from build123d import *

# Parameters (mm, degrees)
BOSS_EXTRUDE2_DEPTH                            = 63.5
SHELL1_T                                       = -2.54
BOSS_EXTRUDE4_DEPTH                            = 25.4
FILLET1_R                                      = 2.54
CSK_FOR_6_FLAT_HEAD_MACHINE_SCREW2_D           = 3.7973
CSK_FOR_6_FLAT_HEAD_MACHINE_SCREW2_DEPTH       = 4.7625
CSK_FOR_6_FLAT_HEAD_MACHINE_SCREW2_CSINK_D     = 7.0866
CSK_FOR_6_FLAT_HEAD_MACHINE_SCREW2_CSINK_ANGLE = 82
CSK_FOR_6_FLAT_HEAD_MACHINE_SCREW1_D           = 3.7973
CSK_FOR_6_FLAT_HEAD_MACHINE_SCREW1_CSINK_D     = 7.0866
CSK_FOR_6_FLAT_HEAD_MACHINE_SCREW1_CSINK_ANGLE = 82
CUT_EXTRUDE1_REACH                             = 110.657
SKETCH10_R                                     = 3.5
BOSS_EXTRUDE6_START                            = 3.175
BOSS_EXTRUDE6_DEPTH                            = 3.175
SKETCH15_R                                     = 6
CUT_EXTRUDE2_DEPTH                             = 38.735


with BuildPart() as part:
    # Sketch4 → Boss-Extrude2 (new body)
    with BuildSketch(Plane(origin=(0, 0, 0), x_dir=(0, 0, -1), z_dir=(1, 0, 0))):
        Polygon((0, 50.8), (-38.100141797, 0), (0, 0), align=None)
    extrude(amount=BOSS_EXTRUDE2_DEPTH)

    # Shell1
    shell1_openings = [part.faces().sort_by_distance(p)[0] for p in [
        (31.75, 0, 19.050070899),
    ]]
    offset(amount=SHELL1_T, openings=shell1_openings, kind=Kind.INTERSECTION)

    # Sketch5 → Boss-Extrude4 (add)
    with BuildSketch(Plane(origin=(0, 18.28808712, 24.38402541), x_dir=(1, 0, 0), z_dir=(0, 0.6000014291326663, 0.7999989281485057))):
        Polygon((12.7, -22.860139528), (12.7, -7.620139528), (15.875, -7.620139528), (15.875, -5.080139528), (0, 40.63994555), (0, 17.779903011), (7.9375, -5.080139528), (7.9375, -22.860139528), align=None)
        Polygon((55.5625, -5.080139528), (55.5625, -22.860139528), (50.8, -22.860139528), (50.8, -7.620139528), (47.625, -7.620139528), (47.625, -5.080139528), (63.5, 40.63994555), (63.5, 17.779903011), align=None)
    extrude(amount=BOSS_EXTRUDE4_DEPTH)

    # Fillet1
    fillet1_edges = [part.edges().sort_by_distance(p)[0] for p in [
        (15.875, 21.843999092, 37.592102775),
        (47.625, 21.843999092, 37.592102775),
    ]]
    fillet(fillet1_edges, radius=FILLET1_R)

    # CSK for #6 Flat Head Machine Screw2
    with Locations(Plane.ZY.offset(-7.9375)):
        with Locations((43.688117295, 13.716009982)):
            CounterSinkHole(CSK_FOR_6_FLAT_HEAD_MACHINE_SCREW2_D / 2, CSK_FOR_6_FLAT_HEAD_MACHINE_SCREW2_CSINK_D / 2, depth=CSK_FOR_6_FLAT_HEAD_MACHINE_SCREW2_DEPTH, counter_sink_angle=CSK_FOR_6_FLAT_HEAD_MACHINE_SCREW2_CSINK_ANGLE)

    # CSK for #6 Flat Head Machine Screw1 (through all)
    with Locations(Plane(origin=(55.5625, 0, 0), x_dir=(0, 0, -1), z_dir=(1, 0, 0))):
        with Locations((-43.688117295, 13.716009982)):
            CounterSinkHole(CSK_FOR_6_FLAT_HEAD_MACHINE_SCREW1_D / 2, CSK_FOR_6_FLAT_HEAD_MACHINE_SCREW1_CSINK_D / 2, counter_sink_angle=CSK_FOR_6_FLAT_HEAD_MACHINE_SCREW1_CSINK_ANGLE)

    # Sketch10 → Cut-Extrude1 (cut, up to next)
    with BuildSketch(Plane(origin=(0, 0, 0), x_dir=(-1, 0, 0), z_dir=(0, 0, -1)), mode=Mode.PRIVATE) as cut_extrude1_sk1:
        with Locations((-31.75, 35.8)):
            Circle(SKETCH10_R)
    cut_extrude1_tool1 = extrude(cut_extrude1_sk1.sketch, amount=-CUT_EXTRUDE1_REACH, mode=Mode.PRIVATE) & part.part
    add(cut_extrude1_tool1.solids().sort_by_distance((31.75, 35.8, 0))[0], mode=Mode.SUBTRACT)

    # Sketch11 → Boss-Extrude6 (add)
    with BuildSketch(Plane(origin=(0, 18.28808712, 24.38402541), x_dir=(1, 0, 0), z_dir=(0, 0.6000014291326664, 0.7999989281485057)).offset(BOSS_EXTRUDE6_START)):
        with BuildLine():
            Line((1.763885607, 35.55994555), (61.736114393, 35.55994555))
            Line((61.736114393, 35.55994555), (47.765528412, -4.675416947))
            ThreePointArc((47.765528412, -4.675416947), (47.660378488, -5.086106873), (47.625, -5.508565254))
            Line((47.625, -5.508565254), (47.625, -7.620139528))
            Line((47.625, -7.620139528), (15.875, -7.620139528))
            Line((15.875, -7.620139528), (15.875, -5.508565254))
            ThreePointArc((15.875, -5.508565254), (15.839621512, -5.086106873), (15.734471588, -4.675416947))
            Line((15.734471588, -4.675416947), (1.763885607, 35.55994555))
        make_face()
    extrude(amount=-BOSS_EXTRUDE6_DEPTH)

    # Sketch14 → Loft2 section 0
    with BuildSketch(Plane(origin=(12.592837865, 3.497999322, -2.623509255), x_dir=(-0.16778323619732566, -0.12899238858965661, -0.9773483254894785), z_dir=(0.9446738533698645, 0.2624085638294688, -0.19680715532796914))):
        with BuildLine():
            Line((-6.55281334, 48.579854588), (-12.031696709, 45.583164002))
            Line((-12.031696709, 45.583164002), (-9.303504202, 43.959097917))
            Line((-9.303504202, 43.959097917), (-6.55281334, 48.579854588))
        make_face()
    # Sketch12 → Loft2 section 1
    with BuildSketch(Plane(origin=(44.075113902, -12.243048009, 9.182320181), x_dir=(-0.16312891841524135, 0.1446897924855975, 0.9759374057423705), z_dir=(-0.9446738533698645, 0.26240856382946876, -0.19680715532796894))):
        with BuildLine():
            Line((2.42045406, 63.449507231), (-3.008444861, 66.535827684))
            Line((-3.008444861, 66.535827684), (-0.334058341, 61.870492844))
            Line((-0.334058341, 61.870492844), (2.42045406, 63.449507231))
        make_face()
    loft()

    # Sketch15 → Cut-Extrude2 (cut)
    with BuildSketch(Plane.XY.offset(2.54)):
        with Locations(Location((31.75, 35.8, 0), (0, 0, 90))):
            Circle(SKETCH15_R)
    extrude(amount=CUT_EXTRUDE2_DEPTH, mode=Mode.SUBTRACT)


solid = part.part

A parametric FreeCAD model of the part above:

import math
import FreeCAD as App
import Part
import Sketcher
from FreeCAD import Vector
Q = App.Units.Quantity


def edges_at(feature, points):
    """Names of the edges that pass closest to the given points."""
    edges = feature.Shape.Edges
    near = lambda p: min(range(len(edges)), key=lambda i: edges[i].distToShape(Part.Vertex(*p))[0])
    return sorted({f"Edge{near(p) + 1}" for p in points})


def faces_at(feature, points):
    """Names of the faces that lie closest to the given points."""
    faces = feature.Shape.Faces
    near = lambda p: min(range(len(faces)), key=lambda i: faces[i].distToShape(Part.Vertex(*p))[0])
    return sorted({f"Face{near(p) + 1}" for p in points})


def add_polygon(sketch, points):
    """Adds a closed chain of lines whose ends are joined by coincident constraints."""
    first, n = sketch.GeometryCount, len(points)
    for a, b in zip(points, points[1:] + points[:1]):
        sketch.addGeometry(Part.LineSegment(App.Vector(*a, 0), App.Vector(*b, 0)), False)
    for i in range(n):
        sketch.addConstraint(Sketcher.Constraint("Coincident", first + i, 2, first + (i + 1) % n, 1))

doc = App.newDocument("Part")
body = doc.addObject("PartDesign::Body", "Body")

# Sketch on YZ plane
sketch1 = body.newObject("Sketcher::SketchObject", "Sketch")
sketch1.AttachmentSupport = (doc.getObject("YZ_Plane"), [""])
sketch1.MapMode = "FlatFace"
add_polygon(sketch1, [(51, 0), (0, 38), (0, 0)])  # lines 0-2
sketch1.addConstraint(Sketcher.Constraint("Vertical", 1))
sketch1.addConstraint(Sketcher.Constraint("Horizontal", 2))
sketch1.addConstraint(Sketcher.Constraint("Coincident", 1, 2, -1, 1))
sketch1.addConstraint(Sketcher.Constraint("DistanceX", 2, 1, 2, 2, Q("2 in")))
sketch1.addConstraint(Sketcher.Constraint("Angle", 0, Q("143.13 deg")))
pad1 = body.newObject("PartDesign::Pad", "Pad")
pad1.Profile = sketch1
pad1.Length = Q("2.5 in")
doc.recompute()

thickness = body.newObject("PartDesign::Thickness", "Thickness")
thickness.Base = (pad1, faces_at(pad1, [(31.75, 0, 19.05)]))
thickness.Value = Q("0.1 in")
thickness.Reversed = True
thickness.Join = "Intersection"

# Sketch on an angled plane
sketch2 = body.newObject("Sketcher::SketchObject", "Sketch001")
sketch2.Placement = App.Placement(Vector(0, 18.288087, 24.384025), App.Rotation(Vector(1, 0, 0), Vector(0, 0.799998928, -0.600001429), Vector(0, 0.600001429, 0.799998928), "ZXY"))
add_polygon(sketch2, [(12.7, -22.9), (12.7, -7.6), (15.9, -7.6), (15.9, -5.1), (0, 40.6), (0, 17.8), (7.9, -5.1), (7.9, -22.9)])  # lines 0-7
add_polygon(sketch2, [(55.6, -22.9), (55.6, -5.1), (63.5, 17.8), (63.5, 40.6), (47.6, -5.1), (47.6, -7.6), (50.8, -7.6), (50.8, -22.9)])  # lines 8-15
sketch2.addConstraint(Sketcher.Constraint("Vertical", 0))
sketch2.addConstraint(Sketcher.Constraint("Horizontal", 1))
sketch2.addConstraint(Sketcher.Constraint("Vertical", 2))
sketch2.addConstraint(Sketcher.Constraint("Vertical", 4))
sketch2.addConstraint(Sketcher.Constraint("Vertical", 6))
sketch2.addConstraint(Sketcher.Constraint("Horizontal", 7))
sketch2.addConstraint(Sketcher.Constraint("Vertical", 8))
sketch2.addConstraint(Sketcher.Constraint("Vertical", 10))
sketch2.addConstraint(Sketcher.Constraint("Vertical", 12))
sketch2.addConstraint(Sketcher.Constraint("Horizontal", 13))
sketch2.addConstraint(Sketcher.Constraint("Vertical", 14))
sketch2.addConstraint(Sketcher.Constraint("Horizontal", 15))
sketch2.addConstraint(Sketcher.Constraint("PointOnObject", 3, 2, -2))
sketch2.addConstraint(Sketcher.Constraint("Parallel", 3, 5))
sketch2.addConstraint(Sketcher.Constraint("Parallel", 9, 11))
sketch2.addConstraint(Sketcher.Constraint("Horizontal", 2, 2, 5, 2))
sketch2.addConstraint(Sketcher.Constraint("Horizontal", 5, 2, 8, 2))
sketch2.addConstraint(Sketcher.Constraint("Horizontal", 4, 2, 9, 2))
sketch2.addConstraint(Sketcher.Constraint("Horizontal", 3, 2, 10, 2))
sketch2.addConstraint(Sketcher.Constraint("Horizontal", 8, 2, 11, 2))
sketch2.addConstraint(Sketcher.Constraint("Horizontal", 1, 2, 12, 2))
sketch2.addConstraint(Sketcher.Constraint("Horizontal", 7, 2, 14, 2))
sketch2.addConstraint(Sketcher.Constraint("Equal", 1, 13))
sketch2.addConstraint(Sketcher.Constraint("Equal", 7, 15))
sketch2.addConstraint(Sketcher.Constraint("DistanceY", 0, 1, 0, 2, Q("0.6 in")))
sketch2.addConstraint(Sketcher.Constraint("DistanceY", 2, 1, 2, 2, Q("0.1 in")))
sketch2.addConstraint(Sketcher.Constraint("DistanceX", -1, 1, 13, 2, Q("2 in")))
sketch2.addConstraint(Sketcher.Constraint("DistanceX", -1, 1, 0, 2, Q("0.5 in")))
sketch2.addConstraint(Sketcher.Constraint("DistanceX", 1, 1, 1, 2, Q("0.125 in")))
sketch2.addConstraint(Sketcher.Constraint("DistanceX", 7, 1, 7, 2, Q("0.1875 in")))
sketch2.addConstraint(Sketcher.Constraint("DistanceY", 4, 2, 4, 1, Q("22.860043 mm")))
sketch2.addConstraint(Sketcher.Constraint("DistanceY", 0, 2, -1, 1, Q("7.62014 mm")))
pad2 = body.newObject("PartDesign::Pad", "Pad001")
pad2.Profile = sketch2
pad2.Length = Q("1 in")
doc.recompute()

fillet = body.newObject("PartDesign::Fillet", "Fillet")
fillet.Base = (pad2, edges_at(pad2, [(15.875, 21.844, 37.592), (47.625, 21.844, 37.592)]))
fillet.Radius = Q("0.1 in")

# Sketch on YZ plane
sketch3 = body.newObject("Sketcher::SketchObject", "Sketch002")
sketch3.AttachmentSupport = (doc.getObject("YZ_Plane"), [""])
sketch3.MapMode = "FlatFace"
sketch3.AttachmentOffset = App.Placement(Vector(0, 0, 0.3125 * 25.4), App.Rotation())
sketch3.addGeometry(Part.Circle(Vector(13.7, 43.7, 0), Vector(0, 0, 1), 1.9), False)
sketch3.addConstraint(Sketcher.Constraint("Diameter", 0, Q("0.1495 in")))
sketch3.addConstraint(Sketcher.Constraint("DistanceX", -1, 1, 0, 3, Q("13.71601 mm")))
sketch3.addConstraint(Sketcher.Constraint("DistanceY", -1, 1, 0, 3, Q("43.688117 mm")))
doc.recompute()
hole = body.newObject("PartDesign::Hole", "Hole")
hole.Profile = sketch3
hole.ThreadType = "None"
hole.Diameter = Q("0.1495 in")
hole.DepthType = "Dimension"
hole.Depth = Q("0.1875 in")
hole.DrillPoint = "Flat"
hole.HoleCutType = "Countersink"
hole.HoleCutDiameter = Q("0.279 in")
hole.HoleCutCountersinkAngle = 82
hole.Reversed = True

# Sketch on YZ plane
sketch4 = body.newObject("Sketcher::SketchObject", "Sketch003")
sketch4.AttachmentSupport = (doc.getObject("YZ_Plane"), [""])
sketch4.MapMode = "FlatFace"
sketch4.AttachmentOffset = App.Placement(Vector(0, 0, 2.1875 * 25.4), App.Rotation())
sketch4.addGeometry(Part.Circle(Vector(13.7, 43.7, 0), Vector(0, 0, 1), 1.9), False)
sketch4.addConstraint(Sketcher.Constraint("Diameter", 0, Q("0.1495 in")))
sketch4.addConstraint(Sketcher.Constraint("DistanceX", -1, 1, 0, 3, Q("13.71601 mm")))
sketch4.addConstraint(Sketcher.Constraint("DistanceY", -1, 1, 0, 3, Q("43.688117 mm")))
doc.recompute()
hole2 = body.newObject("PartDesign::Hole", "Hole001")
hole2.Profile = sketch4
hole2.ThreadType = "None"
hole2.Diameter = Q("0.1495 in")
hole2.DepthType = "ThroughAll"
hole2.HoleCutType = "Countersink"
hole2.HoleCutDiameter = Q("0.279 in")
hole2.HoleCutCountersinkAngle = 82

# Sketch on XY plane
sketch5 = body.newObject("Sketcher::SketchObject", "Sketch004")
sketch5.AttachmentSupport = (doc.getObject("XY_Plane"), [""])
sketch5.MapMode = "FlatFace"
sketch5.addGeometry(Part.Circle(Vector(31.8, 35.8, 0), Vector(0, 0, 1), 3.5), False)
sketch5.addConstraint(Sketcher.Constraint("Diameter", 0, Q("7 mm")))
sketch5.addConstraint(Sketcher.Constraint("DistanceX", -1, 1, 0, 3, Q("1.25 in")))
sketch5.addConstraint(Sketcher.Constraint("DistanceY", -1, 1, 0, 3, Q("35.8 mm")))
pocket1 = body.newObject("PartDesign::Pocket", "Pocket")
pocket1.Profile = sketch5
pocket1.Type = "UpToFirst"
pocket1.Reversed = True

# Sketch on an angled plane
sketch6 = body.newObject("Sketcher::SketchObject", "Sketch005")
sketch6.Placement = App.Placement(Vector(0, 20.193092, 26.924022), App.Rotation(Vector(1, 0, 0), Vector(0, 0.799998928, -0.600001429), Vector(0, 0.600001429, 0.799998928), "ZXY"))
sketch6.addGeometry(Part.LineSegment(Vector(61.736114, 35.559946, 0), Vector(1.763886, 35.559946, 0)), False)
sketch6.addGeometry(Part.LineSegment(Vector(1.763886, 35.559946, 0), Vector(15.734472, -4.675417, 0)), False)
sketch6.addGeometry(Part.ArcOfCircle(Part.Circle(Vector(13.335, -5.508565, 0), Vector(0, 0, 1), 2.54), math.radians(0), math.radians(19.148104)), False)
sketch6.addGeometry(Part.LineSegment(Vector(15.875, -5.508565, 0), Vector(15.875, -7.62014, 0)), False)
sketch6.addGeometry(Part.LineSegment(Vector(15.875, -7.62014, 0), Vector(47.625, -7.62014, 0)), False)
sketch6.addGeometry(Part.LineSegment(Vector(47.625, -7.62014, 0), Vector(47.625, -5.508565, 0)), False)
sketch6.addGeometry(Part.ArcOfCircle(Part.Circle(Vector(50.165, -5.508565, 0), Vector(0, 0, 1), 2.54), math.radians(160.851896), math.radians(180)), False)
sketch6.addGeometry(Part.LineSegment(Vector(47.765528, -4.675417, 0), Vector(61.736114, 35.559946, 0)), False)
sketch6.addConstraint(Sketcher.Constraint("Coincident", 0, 2, 1, 1))
sketch6.addConstraint(Sketcher.Constraint("Coincident", 1, 2, 2, 2))
sketch6.addConstraint(Sketcher.Constraint("Coincident", 2, 1, 3, 1))
sketch6.addConstraint(Sketcher.Constraint("Coincident", 3, 2, 4, 1))
sketch6.addConstraint(Sketcher.Constraint("Coincident", 4, 2, 5, 1))
sketch6.addConstraint(Sketcher.Constraint("Coincident", 5, 2, 6, 2))
sketch6.addConstraint(Sketcher.Constraint("Coincident", 6, 1, 7, 1))
sketch6.addConstraint(Sketcher.Constraint("Coincident", 7, 2, 0, 1))
sketch6.addConstraint(Sketcher.Constraint("Horizontal", 0))
sketch6.addConstraint(Sketcher.Constraint("Vertical", 3))
sketch6.addConstraint(Sketcher.Constraint("Horizontal", 4))
sketch6.addConstraint(Sketcher.Constraint("Vertical", 5))
sketch6.addConstraint(Sketcher.Constraint("Radius", 2, Q("0.1 in")))
sketch6.addConstraint(Sketcher.Constraint("Radius", 6, Q("0.1 in")))
sketch6.addConstraint(Sketcher.Constraint("DistanceX", 4, 1, 4, 2, Q("1.25 in")))
sketch6.addConstraint(Sketcher.Constraint("DistanceX", -1, 1, 2, 3, Q("0.525 in")))
sketch6.addConstraint(Sketcher.Constraint("DistanceX", 0, 2, 0, 1, Q("59.972229 mm")))
sketch6.addConstraint(Sketcher.Constraint("DistanceY", 3, 2, 3, 1, Q("2.111574 mm")))
sketch6.addConstraint(Sketcher.Constraint("DistanceY", 5, 1, 5, 2, Q("2.111574 mm")))
sketch6.addConstraint(Sketcher.Constraint("DistanceX", -1, 1, 1, 2, Q("15.734472 mm")))
sketch6.addConstraint(Sketcher.Constraint("DistanceY", 3, 2, -1, 1, Q("7.62014 mm")))
sketch6.addConstraint(Sketcher.Constraint("DistanceX", -1, 1, 6, 1, Q("47.765528 mm")))
sketch6.addConstraint(Sketcher.Constraint("DistanceY", 2, 3, 0, 2, Q("41.068511 mm")))
sketch6.addConstraint(Sketcher.Constraint("DistanceY", 6, 3, 0, 2, Q("41.068511 mm")))
sketch6.addConstraint(Sketcher.Constraint("DistanceY", 2, 1, 1, 2, Q("0.833148 mm")))
sketch6.addConstraint(Sketcher.Constraint("Distance", 1, Q("42.591803 mm")))
pad3 = body.newObject("PartDesign::Pad", "Pad002")
pad3.Profile = sketch6
pad3.Length = Q("0.125 in")
pad3.Reversed = True

# Sketch on an angled plane
sketch7 = body.newObject("Sketcher::SketchObject", "Sketch006")
sketch7.Placement = App.Placement(Vector(12.592838, 3.497999, -2.623509), App.Rotation(Vector(-0.167783236, -0.128992389, -0.977348325), Vector(-0.281851196, 0.956296349, -0.077827979), Vector(0.944673853, 0.262408564, -0.196807155), "ZXY"))
add_polygon(sketch7, [(-6.6, 48.6), (-12, 45.6), (-9.3, 44)])  # lines 0-2
sketch7.addConstraint(Sketcher.Constraint("Perpendicular", 1, 2))
sketch7.addConstraint(Sketcher.Constraint("Distance", 1, Q("0.125 in")))
sketch7.addConstraint(Sketcher.Constraint("DistanceX", 1, 2, 2, 2, Q("2.750691 mm")))
sketch7.addConstraint(Sketcher.Constraint("DistanceY", 0, 2, 2, 2, Q("2.996691 mm")))
sketch7.addConstraint(Sketcher.Constraint("DistanceX", 0, 2, -1, 1, Q("12.031697 mm")))
sketch7.addConstraint(Sketcher.Constraint("DistanceY", -1, 1, 0, 2, Q("45.583164 mm")))

# Sketch on an angled plane
sketch8 = body.newObject("Sketcher::SketchObject", "Sketch007")
sketch8.Placement = App.Placement(Vector(44.075114, -12.243048, 9.18232), App.Rotation(Vector(-0.163128918, 0.144689792, 0.975937406), Vector(0.28457032, 0.954047488, -0.093878238), Vector(-0.944673853, 0.262408564, -0.196807155), "ZXY"))
add_polygon(sketch8, [(2.4, 63.4), (-3, 66.5), (-0.3, 61.9)])  # lines 0-2
sketch8.addConstraint(Sketcher.Constraint("Perpendicular", 1, 2))
sketch8.addConstraint(Sketcher.Constraint("Distance", 2, Q("0.125 in")))
sketch8.addConstraint(Sketcher.Constraint("DistanceX", 0, 2, 2, 2, Q("5.428899 mm")))
sketch8.addConstraint(Sketcher.Constraint("DistanceX", 1, 2, -1, 1, Q("0.334058 mm")))
sketch8.addConstraint(Sketcher.Constraint("DistanceY", 2, 2, 0, 2, Q("3.08632 mm")))
sketch8.addConstraint(Sketcher.Constraint("DistanceY", -1, 1, 0, 2, Q("66.535828 mm")))

additiveloft = body.newObject("PartDesign::AdditiveLoft", "AdditiveLoft")
additiveloft.Profile = sketch7
additiveloft.Sections = [sketch8]

# Sketch on XY plane
sketch9 = body.newObject("Sketcher::SketchObject", "Sketch008")
sketch9.AttachmentSupport = (doc.getObject("XY_Plane"), [""])
sketch9.MapMode = "FlatFace"
sketch9.AttachmentOffset = App.Placement(Vector(0, 0, 0.1 * 25.4), App.Rotation())
sketch9.addGeometry(Part.Circle(Vector(32, 36, 0), Vector(0, 0, 1), 6), False)
sketch9.addConstraint(Sketcher.Constraint("Diameter", 0, Q("12 mm")))
sketch9.addConstraint(Sketcher.Constraint("DistanceX", -1, 1, 0, 3, Q("1.25 in")))
sketch9.addConstraint(Sketcher.Constraint("DistanceY", -1, 1, 0, 3, Q("35.8 mm")))
pocket2 = body.newObject("PartDesign::Pocket", "Pocket001")
pocket2.Profile = sketch9
pocket2.Length = Q("1.525 in")
pocket2.Reversed = True

doc.recompute()
